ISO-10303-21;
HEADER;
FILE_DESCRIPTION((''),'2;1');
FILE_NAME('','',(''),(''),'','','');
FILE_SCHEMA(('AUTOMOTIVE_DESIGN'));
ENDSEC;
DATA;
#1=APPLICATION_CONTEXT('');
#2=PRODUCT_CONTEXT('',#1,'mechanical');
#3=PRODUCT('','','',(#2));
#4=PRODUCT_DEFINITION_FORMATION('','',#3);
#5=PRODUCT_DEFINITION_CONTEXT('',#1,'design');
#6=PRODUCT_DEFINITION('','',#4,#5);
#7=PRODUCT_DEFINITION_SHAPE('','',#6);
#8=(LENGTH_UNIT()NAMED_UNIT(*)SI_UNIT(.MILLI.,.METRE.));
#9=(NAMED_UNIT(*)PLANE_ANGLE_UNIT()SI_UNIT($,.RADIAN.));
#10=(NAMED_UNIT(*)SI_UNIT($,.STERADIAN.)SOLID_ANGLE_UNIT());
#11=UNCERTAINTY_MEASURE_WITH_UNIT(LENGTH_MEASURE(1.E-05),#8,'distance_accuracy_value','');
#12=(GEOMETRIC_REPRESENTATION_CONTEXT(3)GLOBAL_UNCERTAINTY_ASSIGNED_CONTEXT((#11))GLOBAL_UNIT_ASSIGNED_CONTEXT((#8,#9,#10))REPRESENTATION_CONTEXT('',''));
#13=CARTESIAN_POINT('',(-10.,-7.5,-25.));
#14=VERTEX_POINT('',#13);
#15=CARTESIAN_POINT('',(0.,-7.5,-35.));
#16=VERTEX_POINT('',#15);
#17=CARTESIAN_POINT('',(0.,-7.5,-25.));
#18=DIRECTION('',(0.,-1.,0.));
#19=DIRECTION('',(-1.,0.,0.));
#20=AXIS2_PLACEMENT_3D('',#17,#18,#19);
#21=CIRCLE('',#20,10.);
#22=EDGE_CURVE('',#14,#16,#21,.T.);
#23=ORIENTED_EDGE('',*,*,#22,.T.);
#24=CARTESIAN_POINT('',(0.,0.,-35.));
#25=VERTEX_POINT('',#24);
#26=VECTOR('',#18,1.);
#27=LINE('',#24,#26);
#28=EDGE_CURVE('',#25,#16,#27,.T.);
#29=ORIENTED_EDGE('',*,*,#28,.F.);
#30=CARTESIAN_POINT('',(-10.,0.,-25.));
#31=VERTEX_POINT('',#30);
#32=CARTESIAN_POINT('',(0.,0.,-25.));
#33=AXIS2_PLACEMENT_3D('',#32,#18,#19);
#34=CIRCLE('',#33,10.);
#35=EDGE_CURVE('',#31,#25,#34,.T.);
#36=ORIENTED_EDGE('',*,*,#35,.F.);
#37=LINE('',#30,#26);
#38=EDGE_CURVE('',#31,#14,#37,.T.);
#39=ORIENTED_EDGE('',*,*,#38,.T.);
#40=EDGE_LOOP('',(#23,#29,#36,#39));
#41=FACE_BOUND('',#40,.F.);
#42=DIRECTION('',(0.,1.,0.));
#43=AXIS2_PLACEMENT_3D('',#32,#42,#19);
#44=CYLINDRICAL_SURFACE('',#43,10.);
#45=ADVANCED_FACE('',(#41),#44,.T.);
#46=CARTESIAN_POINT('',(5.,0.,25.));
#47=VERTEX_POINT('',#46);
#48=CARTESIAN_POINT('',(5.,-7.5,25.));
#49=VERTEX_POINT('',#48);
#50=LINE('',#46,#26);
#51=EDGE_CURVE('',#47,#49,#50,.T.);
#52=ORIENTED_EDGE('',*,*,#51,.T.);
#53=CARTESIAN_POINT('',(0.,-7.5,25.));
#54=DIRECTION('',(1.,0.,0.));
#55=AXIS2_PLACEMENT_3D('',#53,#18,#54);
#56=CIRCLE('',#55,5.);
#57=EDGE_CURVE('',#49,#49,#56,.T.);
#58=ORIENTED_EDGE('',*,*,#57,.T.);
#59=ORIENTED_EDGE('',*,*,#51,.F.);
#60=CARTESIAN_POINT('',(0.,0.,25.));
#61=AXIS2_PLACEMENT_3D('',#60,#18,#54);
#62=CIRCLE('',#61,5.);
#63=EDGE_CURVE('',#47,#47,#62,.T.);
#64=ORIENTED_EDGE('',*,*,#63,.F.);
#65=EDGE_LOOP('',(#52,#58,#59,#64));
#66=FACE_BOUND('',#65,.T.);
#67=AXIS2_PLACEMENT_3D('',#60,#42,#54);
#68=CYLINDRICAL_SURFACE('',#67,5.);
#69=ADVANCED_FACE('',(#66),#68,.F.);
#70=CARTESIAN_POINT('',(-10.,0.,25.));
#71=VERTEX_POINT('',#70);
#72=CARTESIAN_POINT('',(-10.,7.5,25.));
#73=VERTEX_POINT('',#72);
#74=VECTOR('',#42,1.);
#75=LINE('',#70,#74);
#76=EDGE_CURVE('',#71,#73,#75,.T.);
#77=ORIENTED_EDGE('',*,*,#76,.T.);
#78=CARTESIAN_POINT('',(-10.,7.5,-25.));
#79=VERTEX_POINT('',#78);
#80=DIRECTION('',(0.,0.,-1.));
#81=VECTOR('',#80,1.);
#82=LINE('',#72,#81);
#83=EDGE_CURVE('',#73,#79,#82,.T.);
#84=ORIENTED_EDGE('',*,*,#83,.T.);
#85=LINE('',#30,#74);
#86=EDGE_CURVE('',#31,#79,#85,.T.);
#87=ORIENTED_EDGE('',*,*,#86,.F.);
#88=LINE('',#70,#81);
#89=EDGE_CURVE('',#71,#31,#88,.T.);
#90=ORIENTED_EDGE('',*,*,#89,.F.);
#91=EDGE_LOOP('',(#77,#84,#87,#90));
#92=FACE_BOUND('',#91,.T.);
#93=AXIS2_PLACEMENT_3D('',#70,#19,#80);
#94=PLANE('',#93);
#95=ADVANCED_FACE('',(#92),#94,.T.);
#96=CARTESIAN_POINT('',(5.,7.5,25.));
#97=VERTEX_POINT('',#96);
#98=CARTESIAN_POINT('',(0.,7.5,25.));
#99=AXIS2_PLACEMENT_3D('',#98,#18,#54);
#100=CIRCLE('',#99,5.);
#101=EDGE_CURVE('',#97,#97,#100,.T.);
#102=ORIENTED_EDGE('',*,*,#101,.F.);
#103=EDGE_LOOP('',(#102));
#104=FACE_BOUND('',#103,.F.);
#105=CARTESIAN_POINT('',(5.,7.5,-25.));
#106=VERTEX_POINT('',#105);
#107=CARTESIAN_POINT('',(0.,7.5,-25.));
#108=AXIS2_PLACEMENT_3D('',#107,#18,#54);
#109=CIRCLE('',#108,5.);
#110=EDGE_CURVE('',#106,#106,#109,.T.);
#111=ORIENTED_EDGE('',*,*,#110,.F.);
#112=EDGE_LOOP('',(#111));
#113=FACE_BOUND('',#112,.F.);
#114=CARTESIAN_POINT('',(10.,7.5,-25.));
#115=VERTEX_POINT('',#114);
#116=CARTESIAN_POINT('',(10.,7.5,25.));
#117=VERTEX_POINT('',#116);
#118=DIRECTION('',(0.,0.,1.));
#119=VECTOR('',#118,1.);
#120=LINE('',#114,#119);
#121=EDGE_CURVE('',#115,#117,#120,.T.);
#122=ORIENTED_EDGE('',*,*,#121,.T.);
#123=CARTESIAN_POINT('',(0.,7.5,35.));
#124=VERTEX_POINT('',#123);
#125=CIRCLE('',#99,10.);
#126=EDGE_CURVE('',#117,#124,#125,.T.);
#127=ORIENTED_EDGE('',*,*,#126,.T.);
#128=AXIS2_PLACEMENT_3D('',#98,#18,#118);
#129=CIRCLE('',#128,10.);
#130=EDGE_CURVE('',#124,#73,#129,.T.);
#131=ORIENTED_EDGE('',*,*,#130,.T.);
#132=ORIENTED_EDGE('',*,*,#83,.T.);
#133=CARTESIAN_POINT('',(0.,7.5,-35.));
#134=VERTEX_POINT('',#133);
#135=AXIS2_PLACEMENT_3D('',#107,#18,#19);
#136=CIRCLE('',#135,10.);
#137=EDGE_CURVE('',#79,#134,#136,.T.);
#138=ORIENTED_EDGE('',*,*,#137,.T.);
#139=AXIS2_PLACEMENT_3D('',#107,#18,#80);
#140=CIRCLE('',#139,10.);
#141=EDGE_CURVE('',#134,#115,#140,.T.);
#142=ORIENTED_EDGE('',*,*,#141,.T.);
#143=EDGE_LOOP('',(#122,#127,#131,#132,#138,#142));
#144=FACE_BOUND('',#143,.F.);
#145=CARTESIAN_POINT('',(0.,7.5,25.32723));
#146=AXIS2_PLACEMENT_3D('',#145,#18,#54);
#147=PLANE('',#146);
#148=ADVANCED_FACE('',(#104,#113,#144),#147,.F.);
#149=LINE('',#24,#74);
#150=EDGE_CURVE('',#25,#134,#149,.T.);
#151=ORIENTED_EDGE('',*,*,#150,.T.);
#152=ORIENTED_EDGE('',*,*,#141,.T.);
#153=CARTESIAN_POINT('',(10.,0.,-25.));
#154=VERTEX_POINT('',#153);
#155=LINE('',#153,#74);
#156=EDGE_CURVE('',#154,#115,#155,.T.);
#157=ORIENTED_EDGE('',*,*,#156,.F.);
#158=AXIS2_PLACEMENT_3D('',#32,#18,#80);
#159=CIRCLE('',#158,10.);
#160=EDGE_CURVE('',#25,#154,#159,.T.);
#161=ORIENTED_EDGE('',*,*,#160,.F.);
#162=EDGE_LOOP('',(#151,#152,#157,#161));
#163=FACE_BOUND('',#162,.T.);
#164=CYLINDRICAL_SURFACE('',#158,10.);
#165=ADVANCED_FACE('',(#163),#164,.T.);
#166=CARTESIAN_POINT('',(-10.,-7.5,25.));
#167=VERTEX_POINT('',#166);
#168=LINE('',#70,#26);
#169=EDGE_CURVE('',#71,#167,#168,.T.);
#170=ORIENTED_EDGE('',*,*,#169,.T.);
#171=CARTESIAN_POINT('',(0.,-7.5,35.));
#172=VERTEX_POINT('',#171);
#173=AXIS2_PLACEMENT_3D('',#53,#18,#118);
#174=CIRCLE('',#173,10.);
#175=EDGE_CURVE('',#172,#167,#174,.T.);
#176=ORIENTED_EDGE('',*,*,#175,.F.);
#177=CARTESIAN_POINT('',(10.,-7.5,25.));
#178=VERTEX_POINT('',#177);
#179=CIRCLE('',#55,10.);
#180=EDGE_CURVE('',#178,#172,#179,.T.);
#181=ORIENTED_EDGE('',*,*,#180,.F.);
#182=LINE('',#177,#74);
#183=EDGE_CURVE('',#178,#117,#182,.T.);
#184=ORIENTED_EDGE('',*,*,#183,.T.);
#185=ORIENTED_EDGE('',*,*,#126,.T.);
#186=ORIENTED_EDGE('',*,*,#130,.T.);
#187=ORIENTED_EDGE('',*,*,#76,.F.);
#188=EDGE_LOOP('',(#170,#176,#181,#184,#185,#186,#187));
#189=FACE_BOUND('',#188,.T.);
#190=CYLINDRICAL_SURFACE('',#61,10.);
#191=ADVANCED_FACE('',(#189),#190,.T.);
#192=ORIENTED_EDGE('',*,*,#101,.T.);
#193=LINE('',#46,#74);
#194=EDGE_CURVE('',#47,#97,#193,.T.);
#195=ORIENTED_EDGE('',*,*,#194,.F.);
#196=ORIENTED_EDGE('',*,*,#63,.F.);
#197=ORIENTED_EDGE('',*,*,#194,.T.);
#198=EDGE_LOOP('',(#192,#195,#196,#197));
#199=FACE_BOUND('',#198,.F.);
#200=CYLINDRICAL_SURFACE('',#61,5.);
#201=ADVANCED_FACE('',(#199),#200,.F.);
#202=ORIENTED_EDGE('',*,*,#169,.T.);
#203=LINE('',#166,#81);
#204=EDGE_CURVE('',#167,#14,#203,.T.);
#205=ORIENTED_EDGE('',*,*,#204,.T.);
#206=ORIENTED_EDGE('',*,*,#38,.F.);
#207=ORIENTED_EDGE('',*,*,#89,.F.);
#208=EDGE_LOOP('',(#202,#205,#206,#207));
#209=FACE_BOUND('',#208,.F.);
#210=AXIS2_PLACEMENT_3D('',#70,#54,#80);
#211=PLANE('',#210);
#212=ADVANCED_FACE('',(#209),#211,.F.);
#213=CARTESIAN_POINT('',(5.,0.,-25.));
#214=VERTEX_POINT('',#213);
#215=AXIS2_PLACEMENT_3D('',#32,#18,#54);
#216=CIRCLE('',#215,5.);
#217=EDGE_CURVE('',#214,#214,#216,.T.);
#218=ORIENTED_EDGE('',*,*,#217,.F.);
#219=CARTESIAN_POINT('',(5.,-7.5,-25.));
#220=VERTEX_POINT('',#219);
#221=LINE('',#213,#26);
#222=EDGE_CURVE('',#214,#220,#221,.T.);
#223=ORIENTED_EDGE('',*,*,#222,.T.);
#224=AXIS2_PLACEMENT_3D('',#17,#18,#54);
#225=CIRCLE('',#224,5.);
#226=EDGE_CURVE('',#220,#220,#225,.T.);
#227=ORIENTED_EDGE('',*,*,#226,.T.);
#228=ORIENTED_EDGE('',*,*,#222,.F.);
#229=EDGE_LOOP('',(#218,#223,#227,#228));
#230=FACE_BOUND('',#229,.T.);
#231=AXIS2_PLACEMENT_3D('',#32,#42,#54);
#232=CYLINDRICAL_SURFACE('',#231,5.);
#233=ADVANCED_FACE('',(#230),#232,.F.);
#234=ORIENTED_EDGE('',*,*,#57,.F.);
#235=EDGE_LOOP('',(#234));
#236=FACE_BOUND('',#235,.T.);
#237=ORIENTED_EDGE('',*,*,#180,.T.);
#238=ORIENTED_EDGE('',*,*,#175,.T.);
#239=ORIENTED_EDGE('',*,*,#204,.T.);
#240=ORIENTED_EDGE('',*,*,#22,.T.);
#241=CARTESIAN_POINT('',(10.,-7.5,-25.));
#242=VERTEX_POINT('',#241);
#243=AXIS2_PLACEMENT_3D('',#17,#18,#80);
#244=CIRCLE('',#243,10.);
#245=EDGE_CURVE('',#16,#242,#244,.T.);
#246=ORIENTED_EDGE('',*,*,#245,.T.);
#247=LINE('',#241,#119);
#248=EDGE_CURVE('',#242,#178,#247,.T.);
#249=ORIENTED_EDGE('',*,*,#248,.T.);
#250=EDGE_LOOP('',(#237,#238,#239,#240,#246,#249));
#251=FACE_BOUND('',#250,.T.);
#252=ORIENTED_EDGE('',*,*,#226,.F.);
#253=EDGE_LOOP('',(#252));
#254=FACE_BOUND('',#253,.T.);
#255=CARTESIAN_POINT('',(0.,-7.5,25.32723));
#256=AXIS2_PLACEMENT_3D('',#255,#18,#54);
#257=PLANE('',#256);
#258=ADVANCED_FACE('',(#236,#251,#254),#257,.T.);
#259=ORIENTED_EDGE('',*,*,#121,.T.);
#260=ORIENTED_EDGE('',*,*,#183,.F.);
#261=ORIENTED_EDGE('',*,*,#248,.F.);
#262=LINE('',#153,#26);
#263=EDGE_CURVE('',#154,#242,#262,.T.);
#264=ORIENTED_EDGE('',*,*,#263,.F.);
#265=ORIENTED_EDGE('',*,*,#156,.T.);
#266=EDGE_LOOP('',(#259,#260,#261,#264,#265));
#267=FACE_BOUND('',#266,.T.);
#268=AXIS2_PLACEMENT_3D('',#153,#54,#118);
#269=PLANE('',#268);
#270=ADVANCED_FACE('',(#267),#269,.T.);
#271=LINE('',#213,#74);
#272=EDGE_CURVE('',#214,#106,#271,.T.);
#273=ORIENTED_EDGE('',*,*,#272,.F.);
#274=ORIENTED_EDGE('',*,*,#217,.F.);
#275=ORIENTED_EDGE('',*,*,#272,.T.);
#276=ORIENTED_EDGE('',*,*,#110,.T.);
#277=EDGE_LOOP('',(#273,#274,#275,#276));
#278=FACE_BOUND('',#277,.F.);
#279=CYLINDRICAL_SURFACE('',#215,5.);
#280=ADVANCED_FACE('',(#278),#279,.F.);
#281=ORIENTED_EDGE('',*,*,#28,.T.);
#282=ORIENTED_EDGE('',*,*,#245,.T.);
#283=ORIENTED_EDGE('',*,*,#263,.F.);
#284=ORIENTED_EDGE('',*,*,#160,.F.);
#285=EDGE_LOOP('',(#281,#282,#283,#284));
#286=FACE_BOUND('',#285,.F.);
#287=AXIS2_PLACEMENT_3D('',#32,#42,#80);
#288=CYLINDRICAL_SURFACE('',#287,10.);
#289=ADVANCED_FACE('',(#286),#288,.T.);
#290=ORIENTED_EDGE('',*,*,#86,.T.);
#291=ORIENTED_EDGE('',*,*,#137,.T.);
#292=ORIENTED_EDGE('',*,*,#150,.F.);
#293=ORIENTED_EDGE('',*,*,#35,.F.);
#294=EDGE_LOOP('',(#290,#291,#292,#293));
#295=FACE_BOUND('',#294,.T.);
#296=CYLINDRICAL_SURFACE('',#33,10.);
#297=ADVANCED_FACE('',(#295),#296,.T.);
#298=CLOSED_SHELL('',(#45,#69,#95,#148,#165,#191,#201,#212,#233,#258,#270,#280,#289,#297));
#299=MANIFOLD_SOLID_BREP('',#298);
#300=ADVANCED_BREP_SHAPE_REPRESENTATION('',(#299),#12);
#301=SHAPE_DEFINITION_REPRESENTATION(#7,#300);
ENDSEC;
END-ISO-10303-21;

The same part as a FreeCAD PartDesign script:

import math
import FreeCAD as App
import Part
import Sketcher

V = App.Vector

doc = App.newDocument("Part")
body = doc.addObject("PartDesign::Body", "Body")

sketch1 = doc.addObject("Sketcher::SketchObject", "Sketch")
body.addObject(sketch1)
sketch1.AttachmentSupport = (doc.XZ_Plane, [""])
sketch1.MapMode = "FlatFace"
sketch1.addGeometry(Part.ArcOfCircle(Part.Circle(V(0, 25, 0), V(0, 0, 1), 10), math.radians(0), math.radians(90)), False)
sketch1.addGeometry(Part.ArcOfCircle(Part.Circle(V(0, 25, 0), V(0, 0, 1), 10), math.radians(90), math.radians(180)), False)
sketch1.addGeometry(Part.LineSegment(V(-10, 25, 0), V(-10, -25, 0)), False)
sketch1.addGeometry(Part.ArcOfCircle(Part.Circle(V(0, -25, 0), V(0, 0, 1), 10), math.radians(180), math.radians(270)), False)
sketch1.addGeometry(Part.ArcOfCircle(Part.Circle(V(0, -25, 0), V(0, 0, 1), 10), math.radians(-90), math.radians(0)), False)
sketch1.addGeometry(Part.LineSegment(V(10, -25, 0), V(10, 25, 0)), False)
sketch1.addGeometry(Part.Circle(V(0, -25, 0), V(0, 0, 1), 5), False)
sketch1.addGeometry(Part.Circle(V(0, 25, 0), V(0, 0, 1), 5), False)
sketch1.addConstraint(Sketcher.Constraint("Tangent", 0, 2, 1, 1))
sketch1.addConstraint(Sketcher.Constraint("Tangent", 1, 2, 2, 1))
sketch1.addConstraint(Sketcher.Constraint("Tangent", 2, 2, 3, 1))
sketch1.addConstraint(Sketcher.Constraint("Tangent", 3, 2, 4, 1))
sketch1.addConstraint(Sketcher.Constraint("Tangent", 4, 2, 5, 1))
sketch1.addConstraint(Sketcher.Constraint("Tangent", 5, 2, 0, 1))
sketch1.addConstraint(Sketcher.Constraint("Vertical", 2))
sketch1.addConstraint(Sketcher.Constraint("Vertical", 5))
sketch1.addConstraint(Sketcher.Constraint("Coincident", 6, 3, 3, 3))
sketch1.addConstraint(Sketcher.Constraint("Coincident", 7, 3, 0, 3))
sketch1.addConstraint(Sketcher.Constraint("Equal", 0, 1))
sketch1.addConstraint(Sketcher.Constraint("Equal", 1, 3))
sketch1.addConstraint(Sketcher.Constraint("Equal", 6, 7))
sketch1.addConstraint(Sketcher.Constraint("Symmetric", 0, 3, 3, 3, -1, 1))
sketch1.addConstraint(Sketcher.Constraint("PointOnObject", 0, 2, -2))
sketch1.addConstraint(Sketcher.Constraint("PointOnObject", 3, 2, -2))
sketch1.addConstraint(Sketcher.Constraint("Diameter", 6, 10.0))
sketch1.addConstraint(Sketcher.Constraint("Radius", 0, 10.0))
sketch1.addConstraint(Sketcher.Constraint("DistanceY", 2, 2, 2, 1, 50.0))
pad1 = doc.addObject("PartDesign::Pad", "Pad")
body.addObject(pad1)
pad1.Profile = sketch1
pad1.Length = 15
pad1.Midplane = True

doc.recompute()
